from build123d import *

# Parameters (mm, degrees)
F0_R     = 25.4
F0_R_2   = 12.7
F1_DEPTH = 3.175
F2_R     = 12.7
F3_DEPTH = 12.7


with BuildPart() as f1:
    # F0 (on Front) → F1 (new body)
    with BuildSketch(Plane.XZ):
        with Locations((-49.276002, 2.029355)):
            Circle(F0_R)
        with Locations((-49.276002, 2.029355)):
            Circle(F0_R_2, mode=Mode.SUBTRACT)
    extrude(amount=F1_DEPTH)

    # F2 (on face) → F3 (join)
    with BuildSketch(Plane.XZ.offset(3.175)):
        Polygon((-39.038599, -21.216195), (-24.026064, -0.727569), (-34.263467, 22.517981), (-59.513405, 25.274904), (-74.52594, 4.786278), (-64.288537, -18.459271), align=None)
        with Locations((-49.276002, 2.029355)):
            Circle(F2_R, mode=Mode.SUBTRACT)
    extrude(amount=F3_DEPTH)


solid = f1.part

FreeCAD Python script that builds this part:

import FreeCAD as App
import Part
import Sketcher
from FreeCAD import Vector
Q = App.Units.Quantity

doc = App.newDocument("Part")
body = doc.addObject("PartDesign::Body", "Body")

# Sketch on XZ plane
sketch1 = body.newObject("Sketcher::SketchObject", "Sketch")
sketch1.AttachmentSupport = (doc.getObject("XZ_Plane"), [""])
sketch1.MapMode = "FlatFace"
sketch1.addGeometry(Part.Circle(Vector(-49, 2, 0), Vector(0, 0, 1), 25), False)
sketch1.addGeometry(Part.Circle(Vector(-49, 2, 0), Vector(0, 0, 1), 13), False)
sketch1.addConstraint(Sketcher.Constraint("Coincident", 1, 3, 0, 3))
sketch1.addConstraint(Sketcher.Constraint("Diameter", 0, Q("2 in")))
sketch1.addConstraint(Sketcher.Constraint("Diameter", 1, Q("1 in")))
sketch1.addConstraint(Sketcher.Constraint("DistanceX", 0, 3, -1, 1, Q("1.9400001 in")))
sketch1.addConstraint(Sketcher.Constraint("DistanceY", -1, 1, 0, 3, Q("2.029355 mm")))
pad1 = body.newObject("PartDesign::Pad", "Pad")
pad1.Profile = sketch1
pad1.Length = Q("0.125 in")

# Sketch on XZ plane
sketch2 = body.newObject("Sketcher::SketchObject", "Sketch001")
sketch2.AttachmentSupport = (doc.getObject("XZ_Plane"), [""])
sketch2.MapMode = "FlatFace"
sketch2.AttachmentOffset = App.Placement(Vector(0, 0, 0.125 * 25.4), App.Rotation())
sketch2.addGeometry(Part.LineSegment(Vector(-39, -21, 0), Vector(-24, -1, 0)), False)
sketch2.addGeometry(Part.LineSegment(Vector(-24, -1, 0), Vector(-34, 23, 0)), False)
sketch2.addGeometry(Part.LineSegment(Vector(-34, 23, 0), Vector(-60, 25, 0)), False)
sketch2.addGeometry(Part.LineSegment(Vector(-60, 25, 0), Vector(-75, 5, 0)), False)
sketch2.addGeometry(Part.LineSegment(Vector(-75, 5, 0), Vector(-64, -18, 0)), False)
sketch2.addGeometry(Part.LineSegment(Vector(-64, -18, 0), Vector(-39, -21, 0)), False)
sketch2.addGeometry(Part.Circle(Vector(-49, 2, 0), Vector(0, 0, 1), 13), False)
sketch2.addConstraint(Sketcher.Constraint("Coincident", 0, 2, 1, 1))
sketch2.addConstraint(Sketcher.Constraint("Coincident", 1, 2, 2, 1))
sketch2.addConstraint(Sketcher.Constraint("Coincident", 2, 2, 3, 1))
sketch2.addConstraint(Sketcher.Constraint("Coincident", 3, 2, 4, 1))
sketch2.addConstraint(Sketcher.Constraint("Coincident", 4, 2, 5, 1))
sketch2.addConstraint(Sketcher.Constraint("Coincident", 5, 2, 0, 1))
sketch2.addConstraint(Sketcher.Constraint("Parallel", 0, 3))
sketch2.addConstraint(Sketcher.Constraint("Parallel", 1, 4))
sketch2.addConstraint(Sketcher.Constraint("Parallel", 2, 5))
sketch2.addConstraint(Sketcher.Constraint("Equal", 0, 1))
sketch2.addConstraint(Sketcher.Constraint("Equal", 1, 2))
sketch2.addConstraint(Sketcher.Constraint("Equal", 2, 3))
sketch2.addConstraint(Sketcher.Constraint("Diameter", 6, Q("1 in")))
sketch2.addConstraint(Sketcher.Constraint("Distance", 0, Q("1 in")))
sketch2.addConstraint(Sketcher.Constraint("DistanceX", 6, 3, -1, 1, Q("1.9400001 in")))
sketch2.addConstraint(Sketcher.Constraint("DistanceX", 5, 2, -1, 1, Q("39.038599 mm")))
sketch2.addConstraint(Sketcher.Constraint("DistanceY", 0, 2, -1, 1, Q("0.727569 mm")))
sketch2.addConstraint(Sketcher.Constraint("DistanceY", -1, 1, 1, 2, Q("22.517981 mm")))
sketch2.addConstraint(Sketcher.Constraint("DistanceX", 3, 2, -1, 1, Q("74.52594 mm")))
sketch2.addConstraint(Sketcher.Constraint("DistanceY", -1, 1, 3, 2, Q("4.786278 mm")))
sketch2.addConstraint(Sketcher.Constraint("DistanceY", 6, 3, 2, 2, Q("23.245549 mm")))
pad2 = body.newObject("PartDesign::Pad", "Pad001")
pad2.Profile = sketch2
pad2.Length = Q("0.5 in")

doc.recompute()
